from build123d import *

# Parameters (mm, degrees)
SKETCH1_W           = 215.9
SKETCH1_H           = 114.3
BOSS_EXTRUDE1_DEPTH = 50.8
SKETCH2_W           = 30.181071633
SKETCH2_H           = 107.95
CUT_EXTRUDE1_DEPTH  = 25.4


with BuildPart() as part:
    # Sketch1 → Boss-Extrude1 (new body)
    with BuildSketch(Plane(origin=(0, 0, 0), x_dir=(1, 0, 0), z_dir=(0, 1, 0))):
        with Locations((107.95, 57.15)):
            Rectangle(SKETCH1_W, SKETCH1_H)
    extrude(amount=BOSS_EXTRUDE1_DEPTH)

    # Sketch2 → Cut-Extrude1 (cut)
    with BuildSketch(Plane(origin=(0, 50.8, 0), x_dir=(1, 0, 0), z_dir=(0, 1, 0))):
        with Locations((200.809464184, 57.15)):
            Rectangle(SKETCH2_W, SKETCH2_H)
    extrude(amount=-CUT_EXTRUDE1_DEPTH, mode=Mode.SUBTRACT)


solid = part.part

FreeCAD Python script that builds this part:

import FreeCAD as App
import Part
import Sketcher
Q = App.Units.Quantity


def add_polygon(sketch, points):
    """Adds a closed chain of lines whose ends are joined by coincident constraints."""
    first, n = sketch.GeometryCount, len(points)
    for a, b in zip(points, points[1:] + points[:1]):
        sketch.addGeometry(Part.LineSegment(App.Vector(*a, 0), App.Vector(*b, 0)), False)
    for i in range(n):
        sketch.addConstraint(Sketcher.Constraint("Coincident", first + i, 2, first + (i + 1) % n, 1))

doc = App.newDocument("Part")
params = doc.addObject("Spreadsheet::Sheet", "Params")
for row, (alias, value) in enumerate([
    ("sketch1_width", "8.5 in"),
    ("sketch1_height", "4.5 in"),
    ("pad1_length", "2 in"),
    ("sketch2_height", "4.25 in"),
    ("pocket1_length", "1 in"),
], start=1):
    params.set(f"A{row}", alias)
    params.set(f"B{row}", "=" + value)
    params.setAlias(f"B{row}", alias)

body = doc.addObject("PartDesign::Body", "Body")

# Sketch on XZ plane
sketch1 = body.newObject("Sketcher::SketchObject", "Sketch")
sketch1.AttachmentSupport = (doc.getObject("XZ_Plane"), [""])
sketch1.MapMode = "FlatFace"
add_polygon(sketch1, [(0, -114), (0, 0), (216, 0), (216, -114)])  # lines 0-3
sketch1.addConstraint(Sketcher.Constraint("Vertical", 0))
sketch1.addConstraint(Sketcher.Constraint("Horizontal", 1))
sketch1.addConstraint(Sketcher.Constraint("Vertical", 2))
sketch1.addConstraint(Sketcher.Constraint("Horizontal", 3))
sketch1.addConstraint(Sketcher.Constraint("Coincident", 0, 2, -1, 1))
sketch1.addConstraint(Sketcher.Constraint("DistanceX", 1, 1, 1, 2, Q("8.5 in")))
sketch1.addConstraint(Sketcher.Constraint("DistanceY", 0, 1, 0, 2, Q("4.5 in")))
sketch1.setExpression("Constraints[9]", "Params.sketch1_width")
sketch1.setExpression("Constraints[10]", "Params.sketch1_height")
pad1 = body.newObject("PartDesign::Pad", "Pad")
pad1.Profile = sketch1
pad1.setExpression("Length", "Params.pad1_length")
pad1.Reversed = True

# Sketch on XZ plane
sketch2 = body.newObject("Sketcher::SketchObject", "Sketch001")
sketch2.AttachmentSupport = (doc.getObject("XZ_Plane"), [""])
sketch2.MapMode = "FlatFace"
sketch2.AttachmentOffset = App.Placement(App.Vector(0, 0, -2 * 25.4), App.Rotation())
add_polygon(sketch2, [(186, -111), (186, -3), (216, -3), (216, -111)])  # lines 0-3
sketch2.addConstraint(Sketcher.Constraint("Vertical", 0))
sketch2.addConstraint(Sketcher.Constraint("Horizontal", 1))
sketch2.addConstraint(Sketcher.Constraint("Vertical", 2))
sketch2.addConstraint(Sketcher.Constraint("Horizontal", 3))
sketch2.addConstraint(Sketcher.Constraint("DistanceY", 0, 1, 0, 2, Q("4.25 in")))
sketch2.addConstraint(Sketcher.Constraint("DistanceX", -1, 1, 1, 2, Q("8.5 in")))
sketch2.addConstraint(Sketcher.Constraint("DistanceY", 0, 2, -1, 1, Q("0.125 in")))
sketch2.addConstraint(Sketcher.Constraint("DistanceX", 1, 1, 1, 2, Q("30.181072 mm")))
sketch2.setExpression("Constraints[8]", "Params.sketch2_height")
pocket1 = body.newObject("PartDesign::Pocket", "Pocket")
pocket1.Profile = sketch2
pocket1.setExpression("Length", "Params.pocket1_length")
pocket1.Reversed = True

doc.recompute()
